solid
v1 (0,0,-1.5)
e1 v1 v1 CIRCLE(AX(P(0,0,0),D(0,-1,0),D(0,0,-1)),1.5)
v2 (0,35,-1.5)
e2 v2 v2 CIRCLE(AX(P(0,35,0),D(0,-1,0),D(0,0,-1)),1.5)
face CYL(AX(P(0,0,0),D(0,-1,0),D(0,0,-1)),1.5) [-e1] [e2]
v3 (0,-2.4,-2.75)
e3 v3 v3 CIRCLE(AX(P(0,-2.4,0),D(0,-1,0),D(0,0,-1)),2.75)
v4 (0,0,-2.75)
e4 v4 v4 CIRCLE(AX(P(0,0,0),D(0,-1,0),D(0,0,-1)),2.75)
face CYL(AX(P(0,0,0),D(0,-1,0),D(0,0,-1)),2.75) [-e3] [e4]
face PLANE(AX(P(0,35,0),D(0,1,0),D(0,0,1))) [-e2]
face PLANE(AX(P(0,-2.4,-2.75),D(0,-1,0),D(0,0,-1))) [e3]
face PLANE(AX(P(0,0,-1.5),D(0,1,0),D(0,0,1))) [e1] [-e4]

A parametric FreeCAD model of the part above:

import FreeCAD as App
import Part
import Sketcher
Q = App.Units.Quantity


def add_polygon(sketch, points):
    """Adds a closed chain of lines whose ends are joined by coincident constraints."""
    first, n = sketch.GeometryCount, len(points)
    for a, b in zip(points, points[1:] + points[:1]):
        sketch.addGeometry(Part.LineSegment(App.Vector(*a, 0), App.Vector(*b, 0)), False)
    for i in range(n):
        sketch.addConstraint(Sketcher.Constraint("Coincident", first + i, 2, first + (i + 1) % n, 1))

doc = App.newDocument("Part")
body = doc.addObject("PartDesign::Body", "Body")

# Sketch on YZ plane
sketch1 = body.newObject("Sketcher::SketchObject", "Sketch")
sketch1.AttachmentSupport = (doc.getObject("YZ_Plane"), [""])
sketch1.MapMode = "FlatFace"
add_polygon(sketch1, [(35, 0), (-2.4, 0), (-2.4, -2.75), (0, -2.75), (0, -1.5), (35, -1.5)])  # lines 0-5
sketch1.addConstraint(Sketcher.Constraint("Horizontal", 0))
sketch1.addConstraint(Sketcher.Constraint("Vertical", 1))
sketch1.addConstraint(Sketcher.Constraint("Horizontal", 2))
sketch1.addConstraint(Sketcher.Constraint("Vertical", 3))
sketch1.addConstraint(Sketcher.Constraint("Horizontal", 4))
sketch1.addConstraint(Sketcher.Constraint("Vertical", 5))
sketch1.addConstraint(Sketcher.Constraint("PointOnObject", 0, 2, -1))
sketch1.addConstraint(Sketcher.Constraint("PointOnObject", 2, 2, -2))
sketch1.addConstraint(Sketcher.Constraint("DistanceX", 4, 1, 4, 2, Q("35 mm")))
sketch1.addConstraint(Sketcher.Constraint("DistanceX", 0, 2, 0, 1, Q("37.4 mm")))
sketch1.addConstraint(Sketcher.Constraint("DistanceY", 5, 1, 5, 2, Q("1.5 mm")))
sketch1.addConstraint(Sketcher.Constraint("DistanceY", 1, 2, 1, 1, Q("2.75 mm")))
revolution = body.newObject("PartDesign::Revolution", "Revolution")
revolution.Profile = sketch1
revolution.ReferenceAxis = (sketch1, ["H_Axis"])
revolution.Angle = 360

doc.recompute()
